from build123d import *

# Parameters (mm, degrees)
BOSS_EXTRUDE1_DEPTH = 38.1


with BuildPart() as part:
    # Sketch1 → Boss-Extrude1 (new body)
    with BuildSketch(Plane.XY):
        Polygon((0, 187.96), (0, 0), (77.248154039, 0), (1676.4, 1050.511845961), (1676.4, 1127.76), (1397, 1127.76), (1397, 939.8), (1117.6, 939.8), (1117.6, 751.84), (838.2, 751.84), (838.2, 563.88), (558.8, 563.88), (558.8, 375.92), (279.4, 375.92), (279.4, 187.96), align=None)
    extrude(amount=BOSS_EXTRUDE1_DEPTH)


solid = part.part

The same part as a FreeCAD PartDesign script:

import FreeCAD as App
import Part
import Sketcher
from FreeCAD import Vector
Q = App.Units.Quantity


def add_polygon(sketch, points):
    """Adds a closed chain of lines whose ends are joined by coincident constraints."""
    first, n = sketch.GeometryCount, len(points)
    for a, b in zip(points, points[1:] + points[:1]):
        sketch.addGeometry(Part.LineSegment(App.Vector(*a, 0), App.Vector(*b, 0)), False)
    for i in range(n):
        sketch.addConstraint(Sketcher.Constraint("Coincident", first + i, 2, first + (i + 1) % n, 1))

doc = App.newDocument("Part")
params = doc.addObject("Spreadsheet::Sheet", "Params")
for row, (alias, value) in enumerate([
    ("sketch1_width", "11 in"),
    ("sketch1_height", "7.4 in"),
    ("pad1_length", "1.5 in"),
], start=1):
    params.set(f"A{row}", alias)
    params.set(f"B{row}", "=" + value)
    params.setAlias(f"B{row}", alias)

body = doc.addObject("PartDesign::Body", "Body")

sketch1 = body.newObject("Sketcher::SketchObject", "Sketch")
sketch1.AttachmentSupport = (doc.getObject("XY_Plane"), [""])
sketch1.MapMode = "FlatFace"
add_polygon(sketch1, [(0, 187.96), (0, 0), (77.248154, 0), (1676.4, 1050.511846), (1676.4, 1127.76), (1397, 1127.76), (1397, 939.8), (1117.6, 939.8), (1117.6, 751.84), (838.2, 751.84), (838.2, 563.88), (558.8, 563.88), (558.8, 375.92), (279.4, 375.92), (279.4, 187.96)])
sketch1.addConstraint([
    Sketcher.Constraint("Vertical", 0),
    Sketcher.Constraint("Horizontal", 1),
    Sketcher.Constraint("Vertical", 3),
    Sketcher.Constraint("Horizontal", 4),
    Sketcher.Constraint("Vertical", 5),
    Sketcher.Constraint("Horizontal", 6),
    Sketcher.Constraint("Vertical", 7),
    Sketcher.Constraint("Horizontal", 8),
    Sketcher.Constraint("Vertical", 9),
    Sketcher.Constraint("Horizontal", 10),
    Sketcher.Constraint("Vertical", 11),
    Sketcher.Constraint("Horizontal", 12),
    Sketcher.Constraint("Vertical", 13),
    Sketcher.Constraint("Horizontal", 14),
    Sketcher.Constraint("Coincident", 0, 2, -1, 1),
    Sketcher.Constraint("Equal", 4, 6),
    Sketcher.Constraint("Equal", 6, 8),
    Sketcher.Constraint("Equal", 8, 10),
    Sketcher.Constraint("Equal", 10, 12),
    Sketcher.Constraint("Equal", 12, 14),
    Sketcher.Constraint("Equal", 1, 3),
    Sketcher.Constraint("Equal", 0, 5),
    Sketcher.Constraint("Equal", 5, 7),
    Sketcher.Constraint("Equal", 7, 9),
    Sketcher.Constraint("Equal", 9, 11),
    Sketcher.Constraint("Equal", 11, 13),
    Sketcher.Constraint("DistanceX", 4, 2, 4, 1, Q("11 in")),
    Sketcher.Constraint("DistanceY", 0, 2, 0, 1, Q("7.4 in")),
    Sketcher.Constraint("Distance", 2, 1913.33786),
])
sketch1.setExpression("Constraints[41]", "Params.sketch1_width")
sketch1.setExpression("Constraints[42]", "Params.sketch1_height")
pad1 = body.newObject("PartDesign::Pad", "Pad")
pad1.Profile = sketch1
pad1.setExpression("Length", "Params.pad1_length")

doc.recompute()
